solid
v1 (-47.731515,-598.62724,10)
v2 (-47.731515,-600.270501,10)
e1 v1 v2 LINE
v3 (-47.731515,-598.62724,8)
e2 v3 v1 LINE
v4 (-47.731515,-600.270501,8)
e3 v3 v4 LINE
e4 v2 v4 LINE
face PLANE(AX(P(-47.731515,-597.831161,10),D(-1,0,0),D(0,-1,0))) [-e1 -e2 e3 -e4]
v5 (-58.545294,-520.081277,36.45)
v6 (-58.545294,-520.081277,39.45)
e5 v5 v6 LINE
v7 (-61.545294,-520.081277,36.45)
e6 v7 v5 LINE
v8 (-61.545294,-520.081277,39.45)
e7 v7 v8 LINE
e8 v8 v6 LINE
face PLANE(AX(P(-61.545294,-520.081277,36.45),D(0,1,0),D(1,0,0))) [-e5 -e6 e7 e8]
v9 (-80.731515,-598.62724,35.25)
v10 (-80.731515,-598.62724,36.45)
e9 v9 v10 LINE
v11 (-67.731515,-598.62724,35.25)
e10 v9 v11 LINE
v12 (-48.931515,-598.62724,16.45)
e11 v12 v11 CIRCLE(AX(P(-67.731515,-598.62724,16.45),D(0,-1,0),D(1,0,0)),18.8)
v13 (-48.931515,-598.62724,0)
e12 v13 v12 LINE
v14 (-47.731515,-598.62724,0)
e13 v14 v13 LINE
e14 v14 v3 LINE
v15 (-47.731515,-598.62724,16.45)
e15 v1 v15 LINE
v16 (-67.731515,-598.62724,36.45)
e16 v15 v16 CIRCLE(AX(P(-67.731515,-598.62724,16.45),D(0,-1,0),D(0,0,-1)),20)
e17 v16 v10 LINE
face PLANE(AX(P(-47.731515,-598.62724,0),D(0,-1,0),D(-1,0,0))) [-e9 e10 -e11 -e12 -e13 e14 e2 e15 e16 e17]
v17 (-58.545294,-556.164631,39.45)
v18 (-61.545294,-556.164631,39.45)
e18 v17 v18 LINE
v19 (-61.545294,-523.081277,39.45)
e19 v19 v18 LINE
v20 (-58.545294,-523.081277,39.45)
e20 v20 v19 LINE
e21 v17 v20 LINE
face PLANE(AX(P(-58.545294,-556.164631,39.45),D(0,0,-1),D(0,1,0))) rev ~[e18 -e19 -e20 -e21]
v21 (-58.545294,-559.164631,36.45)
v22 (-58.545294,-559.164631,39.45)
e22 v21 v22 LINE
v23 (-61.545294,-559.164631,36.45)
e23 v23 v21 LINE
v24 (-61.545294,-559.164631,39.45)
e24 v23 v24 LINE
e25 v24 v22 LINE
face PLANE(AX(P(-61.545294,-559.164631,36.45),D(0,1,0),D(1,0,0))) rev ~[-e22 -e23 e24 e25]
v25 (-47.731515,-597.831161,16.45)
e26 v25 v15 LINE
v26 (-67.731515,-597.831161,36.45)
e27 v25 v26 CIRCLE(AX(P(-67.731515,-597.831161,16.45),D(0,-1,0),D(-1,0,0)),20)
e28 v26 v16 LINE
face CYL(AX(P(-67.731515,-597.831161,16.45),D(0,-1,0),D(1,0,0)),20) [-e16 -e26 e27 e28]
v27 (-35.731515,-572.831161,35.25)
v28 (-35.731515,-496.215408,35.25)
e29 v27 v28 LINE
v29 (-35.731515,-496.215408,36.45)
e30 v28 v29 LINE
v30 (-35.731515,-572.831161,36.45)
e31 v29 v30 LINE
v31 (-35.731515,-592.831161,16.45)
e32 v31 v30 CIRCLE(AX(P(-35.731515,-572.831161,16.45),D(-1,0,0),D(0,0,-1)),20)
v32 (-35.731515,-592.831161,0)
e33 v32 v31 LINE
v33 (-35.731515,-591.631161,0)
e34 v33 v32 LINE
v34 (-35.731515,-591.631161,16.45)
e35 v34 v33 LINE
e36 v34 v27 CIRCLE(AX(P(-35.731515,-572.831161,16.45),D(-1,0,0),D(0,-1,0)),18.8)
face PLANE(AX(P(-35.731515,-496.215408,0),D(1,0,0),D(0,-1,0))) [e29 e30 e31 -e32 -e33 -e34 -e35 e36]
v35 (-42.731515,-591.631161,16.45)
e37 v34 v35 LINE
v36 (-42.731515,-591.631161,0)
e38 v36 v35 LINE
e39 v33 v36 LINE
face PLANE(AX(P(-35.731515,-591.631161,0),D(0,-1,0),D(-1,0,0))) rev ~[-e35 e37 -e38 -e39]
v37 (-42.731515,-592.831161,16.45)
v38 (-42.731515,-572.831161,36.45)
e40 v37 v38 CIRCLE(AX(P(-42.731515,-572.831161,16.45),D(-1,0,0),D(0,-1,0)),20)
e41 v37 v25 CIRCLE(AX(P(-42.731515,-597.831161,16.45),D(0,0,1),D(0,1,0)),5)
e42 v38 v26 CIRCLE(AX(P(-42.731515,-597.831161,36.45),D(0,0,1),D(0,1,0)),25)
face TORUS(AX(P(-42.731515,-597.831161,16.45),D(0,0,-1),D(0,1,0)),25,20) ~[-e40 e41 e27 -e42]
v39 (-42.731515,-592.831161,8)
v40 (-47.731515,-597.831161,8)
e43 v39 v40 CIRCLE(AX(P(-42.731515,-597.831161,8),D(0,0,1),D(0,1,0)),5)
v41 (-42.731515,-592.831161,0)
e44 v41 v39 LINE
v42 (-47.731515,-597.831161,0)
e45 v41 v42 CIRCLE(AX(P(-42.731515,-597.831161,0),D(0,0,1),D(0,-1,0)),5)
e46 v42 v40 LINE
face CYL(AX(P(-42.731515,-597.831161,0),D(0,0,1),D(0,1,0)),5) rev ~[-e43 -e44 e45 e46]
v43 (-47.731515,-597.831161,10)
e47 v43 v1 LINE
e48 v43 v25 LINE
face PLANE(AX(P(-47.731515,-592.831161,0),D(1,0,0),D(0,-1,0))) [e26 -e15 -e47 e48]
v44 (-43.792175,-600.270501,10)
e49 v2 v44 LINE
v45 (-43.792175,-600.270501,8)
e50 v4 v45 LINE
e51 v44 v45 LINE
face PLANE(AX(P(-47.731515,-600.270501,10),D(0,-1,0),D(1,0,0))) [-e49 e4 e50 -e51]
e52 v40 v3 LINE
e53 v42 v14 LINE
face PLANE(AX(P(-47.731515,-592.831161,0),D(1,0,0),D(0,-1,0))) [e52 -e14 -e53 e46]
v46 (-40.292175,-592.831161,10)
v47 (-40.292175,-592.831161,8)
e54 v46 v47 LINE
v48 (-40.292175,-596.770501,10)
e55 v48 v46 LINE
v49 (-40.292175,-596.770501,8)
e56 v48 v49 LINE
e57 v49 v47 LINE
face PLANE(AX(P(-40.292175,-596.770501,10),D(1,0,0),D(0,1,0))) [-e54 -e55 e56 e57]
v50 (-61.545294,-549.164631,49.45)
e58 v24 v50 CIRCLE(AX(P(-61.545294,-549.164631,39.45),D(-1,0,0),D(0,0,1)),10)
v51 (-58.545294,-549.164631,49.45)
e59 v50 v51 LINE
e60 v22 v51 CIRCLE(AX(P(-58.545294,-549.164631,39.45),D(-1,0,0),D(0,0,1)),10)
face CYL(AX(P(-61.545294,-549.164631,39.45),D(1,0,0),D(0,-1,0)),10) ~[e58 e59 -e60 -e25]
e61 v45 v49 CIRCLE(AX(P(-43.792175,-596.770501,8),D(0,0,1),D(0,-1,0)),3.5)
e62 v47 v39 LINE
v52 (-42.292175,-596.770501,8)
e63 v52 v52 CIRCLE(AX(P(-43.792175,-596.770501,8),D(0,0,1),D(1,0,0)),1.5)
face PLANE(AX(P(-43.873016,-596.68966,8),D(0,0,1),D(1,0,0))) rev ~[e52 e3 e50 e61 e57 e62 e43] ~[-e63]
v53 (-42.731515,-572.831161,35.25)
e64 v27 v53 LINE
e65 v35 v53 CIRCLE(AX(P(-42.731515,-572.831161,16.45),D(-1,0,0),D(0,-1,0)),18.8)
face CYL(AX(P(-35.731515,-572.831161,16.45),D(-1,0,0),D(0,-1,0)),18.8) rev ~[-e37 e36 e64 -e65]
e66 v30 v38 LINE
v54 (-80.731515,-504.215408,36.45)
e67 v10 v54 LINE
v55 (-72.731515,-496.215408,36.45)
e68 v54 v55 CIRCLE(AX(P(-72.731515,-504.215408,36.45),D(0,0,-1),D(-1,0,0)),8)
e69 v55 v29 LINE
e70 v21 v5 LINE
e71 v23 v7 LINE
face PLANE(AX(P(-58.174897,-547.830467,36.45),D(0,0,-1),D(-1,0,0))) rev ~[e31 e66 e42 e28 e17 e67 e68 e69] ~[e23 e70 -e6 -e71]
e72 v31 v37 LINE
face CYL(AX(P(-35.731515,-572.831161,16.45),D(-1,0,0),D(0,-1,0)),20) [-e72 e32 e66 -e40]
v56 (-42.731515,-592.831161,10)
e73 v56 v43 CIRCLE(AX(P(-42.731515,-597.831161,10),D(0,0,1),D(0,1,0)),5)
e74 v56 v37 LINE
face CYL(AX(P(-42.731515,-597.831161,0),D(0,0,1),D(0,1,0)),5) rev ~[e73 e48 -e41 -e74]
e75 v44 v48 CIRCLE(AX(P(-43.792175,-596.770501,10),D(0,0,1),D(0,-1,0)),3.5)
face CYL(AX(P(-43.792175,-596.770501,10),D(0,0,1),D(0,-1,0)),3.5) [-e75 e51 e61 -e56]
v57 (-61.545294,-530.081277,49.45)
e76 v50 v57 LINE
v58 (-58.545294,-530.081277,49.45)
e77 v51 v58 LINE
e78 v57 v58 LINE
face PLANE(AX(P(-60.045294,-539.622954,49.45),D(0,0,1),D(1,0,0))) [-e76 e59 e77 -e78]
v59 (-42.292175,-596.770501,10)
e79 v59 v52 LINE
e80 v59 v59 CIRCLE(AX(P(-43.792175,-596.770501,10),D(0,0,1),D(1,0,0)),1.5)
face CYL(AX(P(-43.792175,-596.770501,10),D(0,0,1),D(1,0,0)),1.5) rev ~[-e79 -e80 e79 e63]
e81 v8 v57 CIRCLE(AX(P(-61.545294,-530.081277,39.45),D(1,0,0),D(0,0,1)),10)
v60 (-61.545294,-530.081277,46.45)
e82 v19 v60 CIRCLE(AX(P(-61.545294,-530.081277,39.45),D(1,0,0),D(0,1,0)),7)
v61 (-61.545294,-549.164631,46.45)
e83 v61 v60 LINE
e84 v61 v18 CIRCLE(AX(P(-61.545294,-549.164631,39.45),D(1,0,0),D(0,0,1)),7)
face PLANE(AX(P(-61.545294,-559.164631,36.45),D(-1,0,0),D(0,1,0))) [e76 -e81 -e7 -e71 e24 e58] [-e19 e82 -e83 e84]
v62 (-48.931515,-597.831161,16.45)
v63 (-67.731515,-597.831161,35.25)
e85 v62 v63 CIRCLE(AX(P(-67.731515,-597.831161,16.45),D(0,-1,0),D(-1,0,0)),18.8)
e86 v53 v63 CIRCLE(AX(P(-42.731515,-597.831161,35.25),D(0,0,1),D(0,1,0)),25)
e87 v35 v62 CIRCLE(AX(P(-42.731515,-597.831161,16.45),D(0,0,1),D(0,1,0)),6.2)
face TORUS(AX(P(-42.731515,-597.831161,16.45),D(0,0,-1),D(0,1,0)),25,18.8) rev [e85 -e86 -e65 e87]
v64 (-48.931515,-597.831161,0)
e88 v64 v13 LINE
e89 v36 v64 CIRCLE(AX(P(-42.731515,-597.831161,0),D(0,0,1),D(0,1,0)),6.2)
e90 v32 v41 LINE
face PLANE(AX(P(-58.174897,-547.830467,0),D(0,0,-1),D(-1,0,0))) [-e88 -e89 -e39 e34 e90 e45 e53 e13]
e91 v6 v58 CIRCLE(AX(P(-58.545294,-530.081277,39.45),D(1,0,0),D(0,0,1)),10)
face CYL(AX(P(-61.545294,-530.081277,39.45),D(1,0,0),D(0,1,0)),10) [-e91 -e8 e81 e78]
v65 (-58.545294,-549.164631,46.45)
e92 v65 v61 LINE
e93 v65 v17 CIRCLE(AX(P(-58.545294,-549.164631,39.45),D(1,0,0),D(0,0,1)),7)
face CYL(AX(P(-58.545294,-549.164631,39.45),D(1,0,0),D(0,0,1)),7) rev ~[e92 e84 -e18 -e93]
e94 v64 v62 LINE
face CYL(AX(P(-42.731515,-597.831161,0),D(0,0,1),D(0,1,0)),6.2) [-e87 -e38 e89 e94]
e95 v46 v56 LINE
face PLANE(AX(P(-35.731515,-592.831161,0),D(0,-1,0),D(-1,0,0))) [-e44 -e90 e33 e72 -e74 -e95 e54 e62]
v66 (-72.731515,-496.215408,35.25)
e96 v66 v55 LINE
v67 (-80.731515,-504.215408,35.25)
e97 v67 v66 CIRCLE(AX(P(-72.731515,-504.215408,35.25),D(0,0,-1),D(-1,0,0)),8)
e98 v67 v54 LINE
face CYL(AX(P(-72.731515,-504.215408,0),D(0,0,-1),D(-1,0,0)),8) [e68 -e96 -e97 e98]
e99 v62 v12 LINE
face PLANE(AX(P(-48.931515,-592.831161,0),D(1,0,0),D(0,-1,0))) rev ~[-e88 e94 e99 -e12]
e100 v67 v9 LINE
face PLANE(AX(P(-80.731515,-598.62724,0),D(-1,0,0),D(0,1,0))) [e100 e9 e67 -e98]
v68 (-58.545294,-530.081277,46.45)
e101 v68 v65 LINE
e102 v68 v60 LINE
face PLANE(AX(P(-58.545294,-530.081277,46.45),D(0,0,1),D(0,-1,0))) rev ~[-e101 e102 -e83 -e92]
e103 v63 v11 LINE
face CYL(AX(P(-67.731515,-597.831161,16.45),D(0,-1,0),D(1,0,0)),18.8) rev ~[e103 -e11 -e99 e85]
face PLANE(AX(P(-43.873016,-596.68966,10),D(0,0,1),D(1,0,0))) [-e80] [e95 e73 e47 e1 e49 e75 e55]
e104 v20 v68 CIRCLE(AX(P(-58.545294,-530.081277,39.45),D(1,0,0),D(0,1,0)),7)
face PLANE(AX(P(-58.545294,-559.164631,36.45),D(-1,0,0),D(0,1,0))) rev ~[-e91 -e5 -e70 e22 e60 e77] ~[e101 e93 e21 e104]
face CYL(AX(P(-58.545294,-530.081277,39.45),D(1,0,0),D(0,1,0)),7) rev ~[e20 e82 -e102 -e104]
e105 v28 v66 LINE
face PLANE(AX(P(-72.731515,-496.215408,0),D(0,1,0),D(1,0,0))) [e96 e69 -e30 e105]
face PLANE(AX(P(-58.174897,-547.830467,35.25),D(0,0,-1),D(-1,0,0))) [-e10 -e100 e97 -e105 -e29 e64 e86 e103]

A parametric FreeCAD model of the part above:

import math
import FreeCAD as App
import Part
import Sketcher
Q = App.Units.Quantity


def edges_at(feature, points):
    """Names of the edges that pass closest to the given points."""
    edges = feature.Shape.Edges
    near = lambda p: min(range(len(edges)), key=lambda i: edges[i].distToShape(Part.Vertex(*p))[0])
    return sorted({f"Edge{near(p) + 1}" for p in points})


def faces_at(feature, points):
    """Names of the faces that lie closest to the given points."""
    faces = feature.Shape.Faces
    near = lambda p: min(range(len(faces)), key=lambda i: faces[i].distToShape(Part.Vertex(*p))[0])
    return sorted({f"Face{near(p) + 1}" for p in points})

doc = App.newDocument("Part")
body = doc.addObject("PartDesign::Body", "Body")

# Sketch on XY plane
sketch1 = doc.addObject("Sketcher::SketchObject", "Sketch")
body.addObject(sketch1)
sketch1.AttachmentSupport = (doc.XY_Plane, [""])
sketch1.MapMode = "FlatFace"
sketch1.addGeometry(Part.LineSegment(App.Vector(-36, -496, 0), App.Vector(-73, -496, 0)), False)
sketch1.addGeometry(Part.ArcOfCircle(Part.Circle(App.Vector(-73, -504, 0), App.Vector(0, 0, 1), 8), math.radians(90), math.radians(180)), False)
sketch1.addGeometry(Part.LineSegment(App.Vector(-81, -504, 0), App.Vector(-81, -599, 0)), False)
sketch1.addGeometry(Part.LineSegment(App.Vector(-81, -599, 0), App.Vector(-48, -599, 0)), False)
sketch1.addGeometry(Part.LineSegment(App.Vector(-48, -599, 0), App.Vector(-48, -593, 0)), False)
sketch1.addGeometry(Part.LineSegment(App.Vector(-48, -593, 0), App.Vector(-36, -593, 0)), False)
sketch1.addGeometry(Part.LineSegment(App.Vector(-36, -593, 0), App.Vector(-36, -496, 0)), False)
sketch1.addConstraint(Sketcher.Constraint("Tangent", 0, 2, 1, 1))
sketch1.addConstraint(Sketcher.Constraint("Tangent", 1, 2, 2, 1))
sketch1.addConstraint(Sketcher.Constraint("Coincident", 2, 2, 3, 1))
sketch1.addConstraint(Sketcher.Constraint("Coincident", 3, 2, 4, 1))
sketch1.addConstraint(Sketcher.Constraint("Coincident", 4, 2, 5, 1))
sketch1.addConstraint(Sketcher.Constraint("Coincident", 5, 2, 6, 1))
sketch1.addConstraint(Sketcher.Constraint("Coincident", 6, 2, 0, 1))
sketch1.addConstraint(Sketcher.Constraint("Horizontal", 0))
sketch1.addConstraint(Sketcher.Constraint("Vertical", 2))
sketch1.addConstraint(Sketcher.Constraint("Horizontal", 3))
sketch1.addConstraint(Sketcher.Constraint("Vertical", 4))
sketch1.addConstraint(Sketcher.Constraint("Horizontal", 5))
sketch1.addConstraint(Sketcher.Constraint("Vertical", 6))
sketch1.addConstraint(Sketcher.Constraint("Radius", 1, Q("8 mm")))
sketch1.addConstraint(Sketcher.Constraint("DistanceX", 0, 2, 0, 1, Q("37 mm")))
sketch1.addConstraint(Sketcher.Constraint("DistanceX", 3, 1, 3, 2, Q("33 mm")))
sketch1.addConstraint(Sketcher.Constraint("DistanceY", 2, 2, 2, 1, Q("94.411832 mm")))
sketch1.addConstraint(Sketcher.Constraint("DistanceY", 4, 1, 4, 2, Q("5.796079 mm")))
sketch1.addConstraint(Sketcher.Constraint("DistanceY", 1, 3, -1, 1, Q("504.215408 mm")))
sketch1.addConstraint(Sketcher.Constraint("DistanceX", 1, 3, -1, 1, Q("72.731515 mm")))
pad1 = doc.addObject("PartDesign::Pad", "Pad")
body.addObject(pad1)
pad1.Profile = sketch1
pad1.Length = 36.45
doc.recompute()

fillet = doc.addObject("PartDesign::Fillet", "Fillet")
body.addObject(fillet)
fillet.Base = (pad1, edges_at(pad1, [(-47.732, -592.831, 18.225)]))
fillet.Radius = 5
doc.recompute()

fillet2 = doc.addObject("PartDesign::Fillet", "Fillet001")
body.addObject(fillet2)
fillet2.Base = (fillet, edges_at(fillet, [(-39.232, -592.831, 36.45), (-46.267, -594.296, 36.45), (-47.732, -598.229, 36.45)]))
fillet2.Radius = 20
doc.recompute()

thickness = doc.addObject("PartDesign::Thickness", "Thickness")
body.addObject(thickness)
thickness.Base = (fillet2, faces_at(fillet2, [
    (-78.388, -498.559, 18.225),
    (-80.732, -551.421, 18.225),
    (-64.232, -598.627, 18.225),
    (-35.732, -544.523, 18.225),
    (-54.232, -496.215, 18.225),
    (-58.232, -547.421, 0),
]))
thickness.Value = 1.2
thickness.Reversed = True
thickness.Join = "Intersection"

# Sketch on XY plane
sketch2 = doc.addObject("Sketcher::SketchObject", "Sketch001")
body.addObject(sketch2)
sketch2.AttachmentSupport = (doc.XY_Plane, [""])
sketch2.MapMode = "FlatFace"
sketch2.AttachmentOffset = App.Placement(App.Vector(0, 0, 10), App.Rotation())
sketch2.addGeometry(Part.LineSegment(App.Vector(-47.7, -597.8, 0), App.Vector(-47.7, -600.3, 0)), False)
sketch2.addGeometry(Part.LineSegment(App.Vector(-47.7, -600.3, 0), App.Vector(-43.8, -600.3, 0)), False)
sketch2.addGeometry(Part.ArcOfCircle(Part.Circle(App.Vector(-43.8, -596.8, 0), App.Vector(0, 0, 1), 3.5), math.radians(-90), math.radians(0)), False)
sketch2.addGeometry(Part.LineSegment(App.Vector(-40.3, -596.8, 0), App.Vector(-40.3, -592.8, 0)), False)
sketch2.addGeometry(Part.LineSegment(App.Vector(-40.3, -592.8, 0), App.Vector(-42.7, -592.8, 0)), False)
sketch2.addGeometry(Part.ArcOfCircle(Part.Circle(App.Vector(-42.7, -597.8, 0), App.Vector(0, 0, 1), 5), math.radians(90), math.radians(180)), False)
sketch2.addGeometry(Part.Circle(App.Vector(-43.8, -596.8, 0), App.Vector(0, 0, 1), 1.5), False)
sketch2.addConstraint(Sketcher.Constraint("Coincident", 0, 2, 1, 1))
sketch2.addConstraint(Sketcher.Constraint("Tangent", 1, 2, 2, 1))
sketch2.addConstraint(Sketcher.Constraint("Tangent", 2, 2, 3, 1))
sketch2.addConstraint(Sketcher.Constraint("Coincident", 3, 2, 4, 1))
sketch2.addConstraint(Sketcher.Constraint("Tangent", 4, 2, 5, 1))
sketch2.addConstraint(Sketcher.Constraint("Tangent", 5, 2, 0, 1))
sketch2.addConstraint(Sketcher.Constraint("Vertical", 0))
sketch2.addConstraint(Sketcher.Constraint("Horizontal", 1))
sketch2.addConstraint(Sketcher.Constraint("Vertical", 3))
sketch2.addConstraint(Sketcher.Constraint("Horizontal", 4))
sketch2.addConstraint(Sketcher.Constraint("Coincident", 6, 3, 2, 3))
sketch2.addConstraint(Sketcher.Constraint("Equal", 4, 0))
sketch2.addConstraint(Sketcher.Constraint("Diameter", 6, Q("3 mm")))
sketch2.addConstraint(Sketcher.Constraint("Radius", 5, Q("5 mm")))
sketch2.addConstraint(Sketcher.Constraint("Radius", 2, Q("3.5 mm")))
sketch2.addConstraint(Sketcher.Constraint("DistanceX", 1, 1, 1, 2, Q("3.93934 mm")))
sketch2.addConstraint(Sketcher.Constraint("DistanceY", 2, 3, -1, 1, Q("596.770501 mm")))
sketch2.addConstraint(Sketcher.Constraint("DistanceX", 2, 3, -1, 1, Q("43.792175 mm")))
pad2 = doc.addObject("PartDesign::Pad", "Pad001")
body.addObject(pad2)
pad2.Profile = sketch2
pad2.Length = 2
pad2.Reversed = True

# Sketch on XY plane
sketch3 = doc.addObject("Sketcher::SketchObject", "Sketch002")
body.addObject(sketch3)
sketch3.AttachmentSupport = (doc.XY_Plane, [""])
sketch3.MapMode = "FlatFace"
sketch3.AttachmentOffset = App.Placement(App.Vector(0, 0, 36.45), App.Rotation())
sketch3.addGeometry(Part.LineSegment(App.Vector(-61.5, -520.1, 0), App.Vector(-61.5, -559.2, 0)), False)
sketch3.addGeometry(Part.LineSegment(App.Vector(-61.5, -559.2, 0), App.Vector(-58.5, -559.2, 0)), False)
sketch3.addGeometry(Part.LineSegment(App.Vector(-58.5, -559.2, 0), App.Vector(-58.5, -520.1, 0)), False)
sketch3.addGeometry(Part.LineSegment(App.Vector(-58.5, -520.1, 0), App.Vector(-61.5, -520.1, 0)), False)
sketch3.addConstraint(Sketcher.Constraint("Coincident", 0, 2, 1, 1))
sketch3.addConstraint(Sketcher.Constraint("Coincident", 1, 2, 2, 1))
sketch3.addConstraint(Sketcher.Constraint("Coincident", 2, 2, 3, 1))
sketch3.addConstraint(Sketcher.Constraint("Coincident", 3, 2, 0, 1))
sketch3.addConstraint(Sketcher.Constraint("Vertical", 0))
sketch3.addConstraint(Sketcher.Constraint("Horizontal", 1))
sketch3.addConstraint(Sketcher.Constraint("Vertical", 2))
sketch3.addConstraint(Sketcher.Constraint("Horizontal", 3))
sketch3.addConstraint(Sketcher.Constraint("DistanceX", 1, 1, 1, 2, Q("3 mm")))
sketch3.addConstraint(Sketcher.Constraint("DistanceY", 0, 2, 0, 1, Q("39.083355 mm")))
sketch3.addConstraint(Sketcher.Constraint("DistanceY", 0, 2, -1, 1, Q("559.164631 mm")))
sketch3.addConstraint(Sketcher.Constraint("DistanceX", 0, 2, -1, 1, Q("61.545294 mm")))
pad3 = doc.addObject("PartDesign::Pad", "Pad002")
body.addObject(pad3)
pad3.Profile = sketch3
pad3.Length = 13
doc.recompute()

fillet3 = doc.addObject("PartDesign::Fillet", "Fillet002")
body.addObject(fillet3)
fillet3.Base = (pad3, edges_at(pad3, [(-60.045, -559.165, 49.45), (-60.045, -520.081, 49.45)]))
fillet3.Radius = 10

# Sketch on YZ plane
sketch4 = doc.addObject("Sketcher::SketchObject", "Sketch003")
body.addObject(sketch4)
sketch4.AttachmentSupport = (doc.YZ_Plane, [""])
sketch4.MapMode = "FlatFace"
sketch4.AttachmentOffset = App.Placement(App.Vector(0, 0, -58.545294), App.Rotation())
sketch4.addGeometry(Part.LineSegment(App.Vector(-556, 39, 0), App.Vector(-523, 39, 0)), False)
sketch4.addGeometry(Part.ArcOfCircle(Part.Circle(App.Vector(-530, 39, 0), App.Vector(0, 0, 1), 7), math.radians(0), math.radians(90)), False)
sketch4.addGeometry(Part.LineSegment(App.Vector(-530, 46, 0), App.Vector(-549, 46, 0)), False)
sketch4.addGeometry(Part.ArcOfCircle(Part.Circle(App.Vector(-549, 39, 0), App.Vector(0, 0, 1), 7), math.radians(90), math.radians(180)), False)
sketch4.addConstraint(Sketcher.Constraint("Coincident", 0, 2, 1, 1))
sketch4.addConstraint(Sketcher.Constraint("Tangent", 1, 2, 2, 1))
sketch4.addConstraint(Sketcher.Constraint("Tangent", 2, 2, 3, 1))
sketch4.addConstraint(Sketcher.Constraint("Coincident", 3, 2, 0, 1))
sketch4.addConstraint(Sketcher.Constraint("Horizontal", 0))
sketch4.addConstraint(Sketcher.Constraint("Horizontal", 2))
sketch4.addConstraint(Sketcher.Constraint("Equal", 1, 3))
sketch4.addConstraint(Sketcher.Constraint("Horizontal", 3, 3, 0, 2))
sketch4.addConstraint(Sketcher.Constraint("Radius", 1, Q("7 mm")))
sketch4.addConstraint(Sketcher.Constraint("DistanceY", -1, 1, 1, 3, Q("39.45 mm")))
sketch4.addConstraint(Sketcher.Constraint("DistanceX", 0, 1, 0, 2, Q("33.083355 mm")))
sketch4.addConstraint(Sketcher.Constraint("DistanceX", 3, 3, -1, 1, Q("549.164631 mm")))
pocket1 = doc.addObject("PartDesign::Pocket", "Pocket")
body.addObject(pocket1)
pocket1.Profile = sketch4
pocket1.Length = 13

doc.recompute()
